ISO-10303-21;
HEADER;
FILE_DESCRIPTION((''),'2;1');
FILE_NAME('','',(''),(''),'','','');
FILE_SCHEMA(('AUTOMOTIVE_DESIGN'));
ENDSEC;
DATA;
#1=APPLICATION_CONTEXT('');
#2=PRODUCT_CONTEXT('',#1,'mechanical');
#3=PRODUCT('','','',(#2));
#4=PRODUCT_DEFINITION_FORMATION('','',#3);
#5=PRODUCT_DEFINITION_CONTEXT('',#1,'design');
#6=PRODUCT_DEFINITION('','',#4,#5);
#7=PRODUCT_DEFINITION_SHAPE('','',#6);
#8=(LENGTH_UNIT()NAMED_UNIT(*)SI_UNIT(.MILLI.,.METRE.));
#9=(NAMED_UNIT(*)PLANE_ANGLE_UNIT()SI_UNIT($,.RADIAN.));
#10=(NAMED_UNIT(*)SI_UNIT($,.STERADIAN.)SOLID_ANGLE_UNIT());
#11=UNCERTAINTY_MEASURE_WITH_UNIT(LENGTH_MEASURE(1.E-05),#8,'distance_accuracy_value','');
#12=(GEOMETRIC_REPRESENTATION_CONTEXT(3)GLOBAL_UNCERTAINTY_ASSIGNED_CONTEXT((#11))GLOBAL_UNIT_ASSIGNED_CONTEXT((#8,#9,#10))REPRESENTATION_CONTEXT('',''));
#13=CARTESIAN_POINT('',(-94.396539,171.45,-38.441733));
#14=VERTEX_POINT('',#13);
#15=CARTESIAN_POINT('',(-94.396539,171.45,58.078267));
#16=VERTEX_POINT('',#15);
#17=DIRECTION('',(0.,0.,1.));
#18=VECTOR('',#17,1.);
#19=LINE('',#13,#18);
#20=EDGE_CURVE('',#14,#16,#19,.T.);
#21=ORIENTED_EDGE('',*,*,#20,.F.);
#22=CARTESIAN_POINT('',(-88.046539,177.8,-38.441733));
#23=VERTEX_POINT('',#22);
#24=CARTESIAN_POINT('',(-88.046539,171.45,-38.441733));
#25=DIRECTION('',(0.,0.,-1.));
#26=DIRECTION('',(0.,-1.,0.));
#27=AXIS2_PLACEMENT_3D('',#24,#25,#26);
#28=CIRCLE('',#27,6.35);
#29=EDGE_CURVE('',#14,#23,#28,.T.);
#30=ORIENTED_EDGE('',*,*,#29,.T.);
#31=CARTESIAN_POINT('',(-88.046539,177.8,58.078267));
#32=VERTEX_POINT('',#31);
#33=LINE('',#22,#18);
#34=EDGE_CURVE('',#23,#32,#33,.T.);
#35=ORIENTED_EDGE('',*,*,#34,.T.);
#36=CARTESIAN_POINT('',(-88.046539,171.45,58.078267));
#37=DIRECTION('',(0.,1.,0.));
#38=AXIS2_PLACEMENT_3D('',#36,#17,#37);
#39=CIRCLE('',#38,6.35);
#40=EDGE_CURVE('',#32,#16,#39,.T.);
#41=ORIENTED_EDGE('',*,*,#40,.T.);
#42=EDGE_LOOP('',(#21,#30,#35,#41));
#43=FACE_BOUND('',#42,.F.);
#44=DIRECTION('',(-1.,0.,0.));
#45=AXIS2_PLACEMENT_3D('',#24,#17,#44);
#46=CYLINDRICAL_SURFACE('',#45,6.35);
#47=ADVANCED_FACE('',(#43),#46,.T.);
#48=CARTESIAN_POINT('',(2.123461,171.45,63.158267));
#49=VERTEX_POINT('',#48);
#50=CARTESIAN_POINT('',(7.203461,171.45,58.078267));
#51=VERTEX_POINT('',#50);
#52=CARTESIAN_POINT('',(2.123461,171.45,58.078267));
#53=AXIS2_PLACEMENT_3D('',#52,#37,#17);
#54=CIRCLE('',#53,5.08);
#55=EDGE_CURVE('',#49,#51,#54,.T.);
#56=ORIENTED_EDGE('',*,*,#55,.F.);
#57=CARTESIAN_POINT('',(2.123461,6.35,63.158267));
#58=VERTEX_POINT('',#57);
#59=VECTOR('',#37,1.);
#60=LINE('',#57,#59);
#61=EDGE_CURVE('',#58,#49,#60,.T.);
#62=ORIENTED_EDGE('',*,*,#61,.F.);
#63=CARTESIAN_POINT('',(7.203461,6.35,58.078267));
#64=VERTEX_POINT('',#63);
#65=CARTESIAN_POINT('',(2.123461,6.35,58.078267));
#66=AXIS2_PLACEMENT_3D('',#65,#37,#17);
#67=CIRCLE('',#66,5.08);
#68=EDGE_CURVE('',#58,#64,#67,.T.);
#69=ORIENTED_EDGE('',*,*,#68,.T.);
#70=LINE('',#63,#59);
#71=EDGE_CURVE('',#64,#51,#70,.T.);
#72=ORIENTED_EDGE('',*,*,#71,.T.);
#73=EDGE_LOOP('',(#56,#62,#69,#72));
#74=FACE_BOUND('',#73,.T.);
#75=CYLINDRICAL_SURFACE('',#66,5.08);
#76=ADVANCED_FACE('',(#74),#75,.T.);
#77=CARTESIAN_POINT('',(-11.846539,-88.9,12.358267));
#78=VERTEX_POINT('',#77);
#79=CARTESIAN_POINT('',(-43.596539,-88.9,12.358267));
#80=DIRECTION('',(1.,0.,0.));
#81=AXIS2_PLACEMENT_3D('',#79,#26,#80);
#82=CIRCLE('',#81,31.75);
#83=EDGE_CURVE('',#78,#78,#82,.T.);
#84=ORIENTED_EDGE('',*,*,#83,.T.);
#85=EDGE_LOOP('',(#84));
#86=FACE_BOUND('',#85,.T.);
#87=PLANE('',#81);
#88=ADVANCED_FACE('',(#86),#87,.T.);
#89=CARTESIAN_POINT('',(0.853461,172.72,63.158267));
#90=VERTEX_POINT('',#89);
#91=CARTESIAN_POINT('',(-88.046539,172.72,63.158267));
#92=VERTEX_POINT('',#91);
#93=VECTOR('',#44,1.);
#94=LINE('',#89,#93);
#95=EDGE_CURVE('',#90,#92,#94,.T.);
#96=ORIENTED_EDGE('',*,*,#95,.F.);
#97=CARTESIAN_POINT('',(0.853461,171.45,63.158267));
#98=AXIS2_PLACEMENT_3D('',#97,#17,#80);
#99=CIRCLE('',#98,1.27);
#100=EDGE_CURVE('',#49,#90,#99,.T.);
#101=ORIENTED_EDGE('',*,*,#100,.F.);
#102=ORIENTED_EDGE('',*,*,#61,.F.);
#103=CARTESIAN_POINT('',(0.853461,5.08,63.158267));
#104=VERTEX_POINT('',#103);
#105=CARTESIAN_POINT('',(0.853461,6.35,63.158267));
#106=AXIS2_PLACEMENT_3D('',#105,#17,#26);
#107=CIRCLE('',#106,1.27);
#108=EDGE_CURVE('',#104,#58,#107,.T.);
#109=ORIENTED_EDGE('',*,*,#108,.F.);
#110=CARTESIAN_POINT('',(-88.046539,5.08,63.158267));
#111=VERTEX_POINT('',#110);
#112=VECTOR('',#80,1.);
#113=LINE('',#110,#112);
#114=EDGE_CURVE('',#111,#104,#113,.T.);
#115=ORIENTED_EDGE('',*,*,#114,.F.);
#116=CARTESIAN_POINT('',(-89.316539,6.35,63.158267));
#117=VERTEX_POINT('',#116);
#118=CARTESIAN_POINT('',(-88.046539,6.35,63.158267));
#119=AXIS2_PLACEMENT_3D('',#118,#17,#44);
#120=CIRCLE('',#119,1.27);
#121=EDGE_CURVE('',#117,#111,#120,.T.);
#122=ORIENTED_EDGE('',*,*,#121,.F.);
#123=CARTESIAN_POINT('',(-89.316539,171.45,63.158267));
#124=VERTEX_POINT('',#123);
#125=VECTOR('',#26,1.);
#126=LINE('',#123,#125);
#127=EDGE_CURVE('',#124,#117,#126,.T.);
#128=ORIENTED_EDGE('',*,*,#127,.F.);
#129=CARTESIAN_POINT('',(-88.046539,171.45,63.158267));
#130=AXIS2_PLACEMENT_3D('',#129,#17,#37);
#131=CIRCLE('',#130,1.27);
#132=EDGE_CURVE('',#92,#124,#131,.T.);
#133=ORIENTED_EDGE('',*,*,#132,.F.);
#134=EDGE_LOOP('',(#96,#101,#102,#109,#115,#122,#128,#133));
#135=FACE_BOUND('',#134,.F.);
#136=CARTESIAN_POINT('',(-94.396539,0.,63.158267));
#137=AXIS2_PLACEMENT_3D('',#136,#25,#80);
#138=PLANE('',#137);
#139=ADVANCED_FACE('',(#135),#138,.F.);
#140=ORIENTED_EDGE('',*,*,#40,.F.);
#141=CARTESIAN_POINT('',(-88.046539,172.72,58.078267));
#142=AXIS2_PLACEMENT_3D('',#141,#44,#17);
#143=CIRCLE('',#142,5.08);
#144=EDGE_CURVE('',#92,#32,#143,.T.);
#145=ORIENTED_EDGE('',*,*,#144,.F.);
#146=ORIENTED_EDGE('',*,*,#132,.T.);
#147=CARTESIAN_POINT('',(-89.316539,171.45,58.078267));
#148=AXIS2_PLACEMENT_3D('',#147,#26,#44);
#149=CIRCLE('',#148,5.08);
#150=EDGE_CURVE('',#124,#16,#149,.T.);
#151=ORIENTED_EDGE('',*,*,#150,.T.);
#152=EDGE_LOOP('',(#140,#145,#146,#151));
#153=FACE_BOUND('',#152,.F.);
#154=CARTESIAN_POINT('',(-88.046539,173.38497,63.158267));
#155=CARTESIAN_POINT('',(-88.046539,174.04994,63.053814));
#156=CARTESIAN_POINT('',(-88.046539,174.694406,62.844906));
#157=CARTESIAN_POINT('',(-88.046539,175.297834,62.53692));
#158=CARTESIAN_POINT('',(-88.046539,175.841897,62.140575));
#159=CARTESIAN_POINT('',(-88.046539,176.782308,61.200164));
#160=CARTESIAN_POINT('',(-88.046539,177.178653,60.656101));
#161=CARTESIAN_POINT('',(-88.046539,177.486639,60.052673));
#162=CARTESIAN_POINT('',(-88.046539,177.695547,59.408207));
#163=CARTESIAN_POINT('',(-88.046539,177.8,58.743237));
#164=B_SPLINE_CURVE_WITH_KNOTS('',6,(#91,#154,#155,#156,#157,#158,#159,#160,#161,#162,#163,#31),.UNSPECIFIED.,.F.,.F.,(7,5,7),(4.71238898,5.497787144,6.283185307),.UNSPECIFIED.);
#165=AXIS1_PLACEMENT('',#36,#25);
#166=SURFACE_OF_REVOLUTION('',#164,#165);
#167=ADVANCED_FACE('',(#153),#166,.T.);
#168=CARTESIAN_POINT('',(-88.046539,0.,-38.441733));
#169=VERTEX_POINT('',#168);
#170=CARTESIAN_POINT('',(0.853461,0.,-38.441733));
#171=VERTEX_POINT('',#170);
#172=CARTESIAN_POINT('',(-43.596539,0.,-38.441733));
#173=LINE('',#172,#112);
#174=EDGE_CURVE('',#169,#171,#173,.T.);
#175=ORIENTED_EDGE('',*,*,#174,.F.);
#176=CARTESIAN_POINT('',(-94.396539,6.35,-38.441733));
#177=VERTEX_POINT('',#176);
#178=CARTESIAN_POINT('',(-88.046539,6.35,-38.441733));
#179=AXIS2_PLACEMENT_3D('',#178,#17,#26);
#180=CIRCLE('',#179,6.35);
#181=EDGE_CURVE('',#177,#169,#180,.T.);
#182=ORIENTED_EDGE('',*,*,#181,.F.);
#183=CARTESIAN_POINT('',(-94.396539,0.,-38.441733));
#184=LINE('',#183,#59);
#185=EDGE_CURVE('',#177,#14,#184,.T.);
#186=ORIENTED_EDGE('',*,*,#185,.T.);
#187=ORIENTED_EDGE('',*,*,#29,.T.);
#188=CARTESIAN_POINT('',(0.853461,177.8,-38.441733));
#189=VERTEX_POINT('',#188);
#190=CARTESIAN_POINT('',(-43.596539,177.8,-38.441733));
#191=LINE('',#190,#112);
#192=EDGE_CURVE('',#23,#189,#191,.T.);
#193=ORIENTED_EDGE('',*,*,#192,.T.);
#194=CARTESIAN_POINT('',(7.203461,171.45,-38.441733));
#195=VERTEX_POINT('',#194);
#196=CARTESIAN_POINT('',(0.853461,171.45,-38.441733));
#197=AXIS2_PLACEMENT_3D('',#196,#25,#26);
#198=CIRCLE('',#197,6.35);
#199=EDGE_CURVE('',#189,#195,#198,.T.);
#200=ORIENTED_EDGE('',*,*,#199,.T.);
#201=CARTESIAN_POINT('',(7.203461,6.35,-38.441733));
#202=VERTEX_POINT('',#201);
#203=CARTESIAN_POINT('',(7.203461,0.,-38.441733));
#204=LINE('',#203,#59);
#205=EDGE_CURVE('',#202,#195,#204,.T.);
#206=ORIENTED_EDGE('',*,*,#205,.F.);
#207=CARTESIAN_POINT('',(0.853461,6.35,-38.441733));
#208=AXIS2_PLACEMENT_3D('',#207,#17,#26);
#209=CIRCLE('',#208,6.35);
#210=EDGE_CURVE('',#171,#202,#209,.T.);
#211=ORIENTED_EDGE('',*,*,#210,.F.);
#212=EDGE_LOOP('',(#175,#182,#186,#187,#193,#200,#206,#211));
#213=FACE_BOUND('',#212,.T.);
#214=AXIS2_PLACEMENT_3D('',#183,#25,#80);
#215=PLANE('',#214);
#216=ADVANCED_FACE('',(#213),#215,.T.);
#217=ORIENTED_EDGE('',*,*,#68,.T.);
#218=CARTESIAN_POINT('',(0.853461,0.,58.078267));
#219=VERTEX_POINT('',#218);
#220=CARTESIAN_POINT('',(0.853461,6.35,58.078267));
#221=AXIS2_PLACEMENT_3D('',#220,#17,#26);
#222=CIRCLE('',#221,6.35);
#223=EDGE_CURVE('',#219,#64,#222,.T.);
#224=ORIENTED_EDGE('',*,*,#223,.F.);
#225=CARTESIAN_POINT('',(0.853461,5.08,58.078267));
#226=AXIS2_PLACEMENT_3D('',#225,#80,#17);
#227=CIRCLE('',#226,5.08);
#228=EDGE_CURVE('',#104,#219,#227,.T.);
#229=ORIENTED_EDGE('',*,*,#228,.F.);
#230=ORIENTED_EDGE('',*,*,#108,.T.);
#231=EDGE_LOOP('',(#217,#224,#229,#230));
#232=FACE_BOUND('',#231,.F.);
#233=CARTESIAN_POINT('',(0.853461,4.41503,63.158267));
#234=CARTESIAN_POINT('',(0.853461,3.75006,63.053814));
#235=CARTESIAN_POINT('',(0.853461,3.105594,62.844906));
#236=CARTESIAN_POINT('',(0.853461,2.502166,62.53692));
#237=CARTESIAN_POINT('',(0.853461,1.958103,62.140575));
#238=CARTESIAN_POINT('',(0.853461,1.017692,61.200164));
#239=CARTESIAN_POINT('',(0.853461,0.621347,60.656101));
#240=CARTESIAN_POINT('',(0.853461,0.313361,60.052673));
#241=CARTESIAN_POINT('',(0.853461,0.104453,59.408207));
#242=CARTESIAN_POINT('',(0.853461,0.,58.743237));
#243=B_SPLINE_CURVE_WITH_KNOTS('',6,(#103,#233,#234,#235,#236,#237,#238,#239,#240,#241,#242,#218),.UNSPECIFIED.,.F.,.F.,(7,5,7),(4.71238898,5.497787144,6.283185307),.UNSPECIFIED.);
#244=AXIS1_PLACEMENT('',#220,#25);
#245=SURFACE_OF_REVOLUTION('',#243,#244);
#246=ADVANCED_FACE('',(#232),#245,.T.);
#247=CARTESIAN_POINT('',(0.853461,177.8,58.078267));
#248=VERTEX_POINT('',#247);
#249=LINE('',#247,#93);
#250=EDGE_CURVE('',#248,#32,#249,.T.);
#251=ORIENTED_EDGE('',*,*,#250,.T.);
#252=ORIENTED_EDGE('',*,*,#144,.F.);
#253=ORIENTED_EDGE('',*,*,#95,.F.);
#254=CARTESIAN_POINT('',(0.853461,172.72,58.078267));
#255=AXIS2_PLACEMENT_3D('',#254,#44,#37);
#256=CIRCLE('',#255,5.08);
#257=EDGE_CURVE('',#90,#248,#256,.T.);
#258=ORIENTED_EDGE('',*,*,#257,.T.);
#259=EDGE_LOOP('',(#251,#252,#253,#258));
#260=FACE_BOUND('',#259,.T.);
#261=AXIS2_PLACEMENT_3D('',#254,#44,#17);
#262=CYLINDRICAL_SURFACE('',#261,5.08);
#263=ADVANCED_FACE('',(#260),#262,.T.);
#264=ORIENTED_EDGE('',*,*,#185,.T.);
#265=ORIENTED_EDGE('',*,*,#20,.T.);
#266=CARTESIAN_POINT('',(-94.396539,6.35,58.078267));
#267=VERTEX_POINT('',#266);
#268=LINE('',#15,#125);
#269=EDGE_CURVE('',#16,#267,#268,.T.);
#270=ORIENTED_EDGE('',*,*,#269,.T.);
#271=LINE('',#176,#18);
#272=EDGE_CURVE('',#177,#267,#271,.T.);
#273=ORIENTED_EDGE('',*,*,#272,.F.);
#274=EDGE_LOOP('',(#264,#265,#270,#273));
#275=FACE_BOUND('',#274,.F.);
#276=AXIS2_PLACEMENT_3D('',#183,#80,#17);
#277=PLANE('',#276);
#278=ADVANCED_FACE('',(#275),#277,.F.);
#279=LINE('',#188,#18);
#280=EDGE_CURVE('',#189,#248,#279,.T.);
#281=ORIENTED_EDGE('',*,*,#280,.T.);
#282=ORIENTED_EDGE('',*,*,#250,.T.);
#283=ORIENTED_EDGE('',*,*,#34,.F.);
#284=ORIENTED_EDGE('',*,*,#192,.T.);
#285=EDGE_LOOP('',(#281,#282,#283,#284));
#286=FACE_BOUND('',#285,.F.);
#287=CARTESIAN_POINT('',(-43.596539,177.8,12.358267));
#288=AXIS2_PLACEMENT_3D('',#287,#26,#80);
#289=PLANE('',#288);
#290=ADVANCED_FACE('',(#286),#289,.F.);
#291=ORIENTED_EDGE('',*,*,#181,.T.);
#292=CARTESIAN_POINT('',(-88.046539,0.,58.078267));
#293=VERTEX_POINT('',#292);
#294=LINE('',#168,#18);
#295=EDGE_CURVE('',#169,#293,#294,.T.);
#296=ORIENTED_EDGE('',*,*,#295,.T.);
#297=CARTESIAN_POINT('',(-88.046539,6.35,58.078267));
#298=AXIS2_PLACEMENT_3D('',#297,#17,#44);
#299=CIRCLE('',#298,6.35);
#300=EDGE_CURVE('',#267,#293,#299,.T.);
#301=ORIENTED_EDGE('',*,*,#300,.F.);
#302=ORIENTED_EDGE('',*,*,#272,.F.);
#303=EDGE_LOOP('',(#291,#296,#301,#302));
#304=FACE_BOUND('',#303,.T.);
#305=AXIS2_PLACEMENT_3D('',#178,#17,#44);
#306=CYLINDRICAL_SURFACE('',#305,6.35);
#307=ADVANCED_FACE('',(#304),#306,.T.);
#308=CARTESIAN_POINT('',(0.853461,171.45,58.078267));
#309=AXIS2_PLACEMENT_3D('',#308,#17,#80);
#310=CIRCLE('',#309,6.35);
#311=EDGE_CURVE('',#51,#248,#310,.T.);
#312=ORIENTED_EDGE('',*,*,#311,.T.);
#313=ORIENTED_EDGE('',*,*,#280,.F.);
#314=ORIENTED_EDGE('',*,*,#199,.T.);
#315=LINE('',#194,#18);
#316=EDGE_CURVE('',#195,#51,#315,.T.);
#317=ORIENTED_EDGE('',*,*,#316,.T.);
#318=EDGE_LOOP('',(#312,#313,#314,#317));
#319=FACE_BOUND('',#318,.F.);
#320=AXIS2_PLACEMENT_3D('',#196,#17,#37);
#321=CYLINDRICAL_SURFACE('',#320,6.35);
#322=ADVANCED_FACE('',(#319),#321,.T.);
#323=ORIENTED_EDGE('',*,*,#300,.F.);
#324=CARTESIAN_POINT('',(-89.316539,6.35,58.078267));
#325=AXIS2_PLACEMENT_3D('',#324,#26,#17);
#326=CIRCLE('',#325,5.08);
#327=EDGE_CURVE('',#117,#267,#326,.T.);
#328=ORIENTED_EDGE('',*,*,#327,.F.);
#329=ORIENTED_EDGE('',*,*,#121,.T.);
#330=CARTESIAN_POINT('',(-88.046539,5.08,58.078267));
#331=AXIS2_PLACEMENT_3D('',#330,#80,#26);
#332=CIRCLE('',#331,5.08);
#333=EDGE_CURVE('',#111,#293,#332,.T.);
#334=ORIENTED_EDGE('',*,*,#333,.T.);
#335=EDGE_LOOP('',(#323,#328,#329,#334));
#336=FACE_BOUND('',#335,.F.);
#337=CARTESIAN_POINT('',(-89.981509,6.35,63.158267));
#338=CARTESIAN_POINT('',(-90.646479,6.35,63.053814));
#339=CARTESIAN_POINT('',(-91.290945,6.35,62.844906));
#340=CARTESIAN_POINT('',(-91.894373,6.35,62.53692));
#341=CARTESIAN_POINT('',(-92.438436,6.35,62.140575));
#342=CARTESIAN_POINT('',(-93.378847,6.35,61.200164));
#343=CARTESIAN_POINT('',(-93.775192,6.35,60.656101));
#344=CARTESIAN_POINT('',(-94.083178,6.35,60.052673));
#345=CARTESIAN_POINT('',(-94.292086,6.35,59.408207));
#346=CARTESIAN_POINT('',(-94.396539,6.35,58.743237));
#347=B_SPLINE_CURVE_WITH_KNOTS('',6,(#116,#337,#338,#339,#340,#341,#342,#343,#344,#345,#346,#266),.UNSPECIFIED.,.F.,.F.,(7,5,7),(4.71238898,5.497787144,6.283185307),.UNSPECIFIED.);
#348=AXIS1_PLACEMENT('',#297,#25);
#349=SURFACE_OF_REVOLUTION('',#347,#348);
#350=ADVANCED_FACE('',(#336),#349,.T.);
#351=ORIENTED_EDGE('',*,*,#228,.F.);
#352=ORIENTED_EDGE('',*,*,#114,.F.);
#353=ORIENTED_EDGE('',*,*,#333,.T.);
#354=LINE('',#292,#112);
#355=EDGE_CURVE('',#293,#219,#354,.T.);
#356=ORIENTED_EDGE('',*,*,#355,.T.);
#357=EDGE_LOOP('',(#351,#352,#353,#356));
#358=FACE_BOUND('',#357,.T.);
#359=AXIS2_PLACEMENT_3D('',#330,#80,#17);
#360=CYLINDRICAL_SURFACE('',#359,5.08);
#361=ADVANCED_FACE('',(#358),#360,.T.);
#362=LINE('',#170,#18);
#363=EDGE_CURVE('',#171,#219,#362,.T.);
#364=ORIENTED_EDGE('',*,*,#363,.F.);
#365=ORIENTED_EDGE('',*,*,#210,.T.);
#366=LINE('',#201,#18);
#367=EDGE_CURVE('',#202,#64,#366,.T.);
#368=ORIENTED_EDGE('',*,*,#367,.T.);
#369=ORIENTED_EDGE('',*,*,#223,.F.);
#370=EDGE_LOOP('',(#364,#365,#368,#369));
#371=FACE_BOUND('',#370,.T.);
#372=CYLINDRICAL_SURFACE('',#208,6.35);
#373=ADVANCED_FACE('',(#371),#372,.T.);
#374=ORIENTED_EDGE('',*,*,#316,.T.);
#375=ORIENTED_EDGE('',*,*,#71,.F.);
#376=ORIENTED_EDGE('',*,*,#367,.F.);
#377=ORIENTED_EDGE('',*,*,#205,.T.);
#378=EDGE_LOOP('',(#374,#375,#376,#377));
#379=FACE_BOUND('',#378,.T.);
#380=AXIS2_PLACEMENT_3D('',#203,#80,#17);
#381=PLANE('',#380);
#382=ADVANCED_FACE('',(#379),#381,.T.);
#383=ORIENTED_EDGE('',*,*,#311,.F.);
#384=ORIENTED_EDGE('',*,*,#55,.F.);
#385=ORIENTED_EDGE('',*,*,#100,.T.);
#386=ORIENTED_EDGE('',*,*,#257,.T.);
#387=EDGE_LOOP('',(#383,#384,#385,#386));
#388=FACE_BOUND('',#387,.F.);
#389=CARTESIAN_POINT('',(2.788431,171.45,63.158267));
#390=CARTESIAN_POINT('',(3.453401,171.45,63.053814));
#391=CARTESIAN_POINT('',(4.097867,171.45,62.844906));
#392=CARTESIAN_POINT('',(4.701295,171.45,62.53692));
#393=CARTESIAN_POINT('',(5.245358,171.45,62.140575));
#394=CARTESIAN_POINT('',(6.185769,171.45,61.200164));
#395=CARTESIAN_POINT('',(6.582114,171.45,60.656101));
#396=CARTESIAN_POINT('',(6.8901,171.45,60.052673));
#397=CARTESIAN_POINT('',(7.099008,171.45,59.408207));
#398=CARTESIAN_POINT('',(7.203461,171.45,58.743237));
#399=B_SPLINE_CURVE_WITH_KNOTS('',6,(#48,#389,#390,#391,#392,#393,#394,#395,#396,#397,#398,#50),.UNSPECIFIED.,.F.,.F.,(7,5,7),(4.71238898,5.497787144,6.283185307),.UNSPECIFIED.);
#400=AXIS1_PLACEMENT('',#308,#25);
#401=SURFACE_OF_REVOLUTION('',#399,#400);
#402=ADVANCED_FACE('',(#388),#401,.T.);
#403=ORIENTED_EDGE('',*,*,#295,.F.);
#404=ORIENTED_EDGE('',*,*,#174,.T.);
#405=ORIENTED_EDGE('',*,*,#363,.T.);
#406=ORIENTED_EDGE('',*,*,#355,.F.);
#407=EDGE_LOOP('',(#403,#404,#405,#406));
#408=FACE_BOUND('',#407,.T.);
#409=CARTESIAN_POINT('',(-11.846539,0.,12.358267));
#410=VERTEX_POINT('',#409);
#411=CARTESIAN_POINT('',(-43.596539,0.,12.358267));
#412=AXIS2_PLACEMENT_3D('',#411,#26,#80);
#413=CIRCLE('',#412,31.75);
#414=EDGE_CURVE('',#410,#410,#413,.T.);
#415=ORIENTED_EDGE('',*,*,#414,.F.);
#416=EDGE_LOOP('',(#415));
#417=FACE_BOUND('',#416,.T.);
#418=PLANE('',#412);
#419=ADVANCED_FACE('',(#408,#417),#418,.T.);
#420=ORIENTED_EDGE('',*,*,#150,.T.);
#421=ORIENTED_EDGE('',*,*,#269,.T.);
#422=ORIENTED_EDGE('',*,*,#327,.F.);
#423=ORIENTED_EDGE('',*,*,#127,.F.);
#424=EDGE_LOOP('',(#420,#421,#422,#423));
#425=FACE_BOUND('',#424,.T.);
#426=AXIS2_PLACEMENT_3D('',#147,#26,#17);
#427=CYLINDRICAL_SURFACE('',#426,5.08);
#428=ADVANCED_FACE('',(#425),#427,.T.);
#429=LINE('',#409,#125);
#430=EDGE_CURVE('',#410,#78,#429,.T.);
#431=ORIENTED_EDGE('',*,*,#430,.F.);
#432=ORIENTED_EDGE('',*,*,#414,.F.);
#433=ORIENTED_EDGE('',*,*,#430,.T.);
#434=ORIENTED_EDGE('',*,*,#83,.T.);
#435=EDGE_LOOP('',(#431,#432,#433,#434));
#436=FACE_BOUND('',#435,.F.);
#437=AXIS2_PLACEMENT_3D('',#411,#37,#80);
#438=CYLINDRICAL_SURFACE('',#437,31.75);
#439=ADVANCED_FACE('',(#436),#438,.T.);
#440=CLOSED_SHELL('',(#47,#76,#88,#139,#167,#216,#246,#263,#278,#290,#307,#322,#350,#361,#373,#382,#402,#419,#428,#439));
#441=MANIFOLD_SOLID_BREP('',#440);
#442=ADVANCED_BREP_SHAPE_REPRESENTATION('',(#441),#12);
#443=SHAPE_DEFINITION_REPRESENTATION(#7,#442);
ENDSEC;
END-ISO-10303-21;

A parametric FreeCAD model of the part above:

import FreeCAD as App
import Part
import Sketcher
Q = App.Units.Quantity


def edges_at(feature, points):
    """Names of the edges that pass closest to the given points."""
    edges = feature.Shape.Edges
    near = lambda p: min(range(len(edges)), key=lambda i: edges[i].distToShape(Part.Vertex(*p))[0])
    return sorted({f"Edge{near(p) + 1}" for p in points})

doc = App.newDocument("Part")
body = doc.addObject("PartDesign::Body", "Body")

sketch1 = doc.addObject("Sketcher::SketchObject", "Sketch")
body.addObject(sketch1)
sketch1.AttachmentSupport = (doc.XZ_Plane, [""])
sketch1.MapMode = "FlatFace"
sketch1.addGeometry(Part.LineSegment(App.Vector(-94, 63, 0), App.Vector(-94, -38, 0)), False)
sketch1.addGeometry(Part.LineSegment(App.Vector(-94, -38, 0), App.Vector(7, -38, 0)), False)
sketch1.addGeometry(Part.LineSegment(App.Vector(7, -38, 0), App.Vector(7, 63, 0)), False)
sketch1.addGeometry(Part.LineSegment(App.Vector(7, 63, 0), App.Vector(-94, 63, 0)), False)
sketch1.addConstraint(Sketcher.Constraint("Coincident", 0, 2, 1, 1))
sketch1.addConstraint(Sketcher.Constraint("Coincident", 1, 2, 2, 1))
sketch1.addConstraint(Sketcher.Constraint("Coincident", 2, 2, 3, 1))
sketch1.addConstraint(Sketcher.Constraint("Coincident", 3, 2, 0, 1))
sketch1.addConstraint(Sketcher.Constraint("Vertical", 0))
sketch1.addConstraint(Sketcher.Constraint("Horizontal", 1))
sketch1.addConstraint(Sketcher.Constraint("Vertical", 2))
sketch1.addConstraint(Sketcher.Constraint("Horizontal", 3))
sketch1.addConstraint(Sketcher.Constraint("Equal", 3, 0))
sketch1.addConstraint(Sketcher.Constraint("DistanceX", 1, 1, 1, 2, Q("4 in")))
sketch1.addConstraint(Sketcher.Constraint("DistanceX", 0, 2, -1, 1, 94.396539))
sketch1.addConstraint(Sketcher.Constraint("DistanceY", 0, 2, -1, 1, 38.441733))
pad1 = doc.addObject("PartDesign::Pad", "Pad")
body.addObject(pad1)
pad1.Profile = sketch1
pad1.Length = Q("7 in")
pad1.Reversed = True

sketch2 = doc.addObject("Sketcher::SketchObject", "Sketch001")
body.addObject(sketch2)
sketch2.AttachmentSupport = (doc.XZ_Plane, [""])
sketch2.MapMode = "FlatFace"
sketch2.addGeometry(Part.Circle(App.Vector(-44, 12, 0), App.Vector(0, 0, 1), 32), False)
sketch2.addConstraint(Sketcher.Constraint("Diameter", 0, Q("2.5 in")))
sketch2.addConstraint(Sketcher.Constraint("DistanceX", 0, 3, -1, 1, 43.596539))
sketch2.addConstraint(Sketcher.Constraint("DistanceY", -1, 1, 0, 3, 12.358267))
pad2 = doc.addObject("PartDesign::Pad", "Pad001")
body.addObject(pad2)
pad2.Profile = sketch2
pad2.Length = Q("3.5 in")
doc.recompute()

fillet = doc.addObject("PartDesign::Fillet", "Fillet")
body.addObject(fillet)
fillet.Base = (pad2, edges_at(pad2, [
    (7.203, 0, 12.358),
    (-94.397, 0, 12.358),
    (7.203, 177.8, 12.358),
    (-94.397, 177.8, 12.358),
]))
fillet.Radius = Q("0.25 in")
doc.recompute()

fillet2 = doc.addObject("PartDesign::Fillet", "Fillet001")
body.addObject(fillet2)
fillet2.Base = (fillet, edges_at(fillet, [(7.203, 88.9, 63.158)]))
fillet2.Radius = Q("0.2 in")

doc.recompute()
